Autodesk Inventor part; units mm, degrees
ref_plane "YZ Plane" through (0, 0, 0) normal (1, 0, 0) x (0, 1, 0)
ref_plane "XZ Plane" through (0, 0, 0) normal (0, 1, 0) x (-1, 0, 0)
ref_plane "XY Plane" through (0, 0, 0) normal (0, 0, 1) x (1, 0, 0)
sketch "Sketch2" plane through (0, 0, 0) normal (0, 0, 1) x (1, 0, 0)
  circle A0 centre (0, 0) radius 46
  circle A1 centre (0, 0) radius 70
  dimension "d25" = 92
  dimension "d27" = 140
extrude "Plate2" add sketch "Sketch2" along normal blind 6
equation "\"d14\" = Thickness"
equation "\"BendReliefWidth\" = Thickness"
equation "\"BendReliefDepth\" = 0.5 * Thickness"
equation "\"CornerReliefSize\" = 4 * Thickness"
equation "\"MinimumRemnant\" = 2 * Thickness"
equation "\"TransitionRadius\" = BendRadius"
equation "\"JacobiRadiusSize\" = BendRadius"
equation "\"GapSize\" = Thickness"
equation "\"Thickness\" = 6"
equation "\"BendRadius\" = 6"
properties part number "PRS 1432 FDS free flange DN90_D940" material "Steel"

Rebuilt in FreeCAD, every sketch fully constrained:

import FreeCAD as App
import Part
import Sketcher

doc = App.newDocument("Part")
body = doc.addObject("PartDesign::Body", "Body")

# Sketch on XY plane
sketch1 = body.newObject("Sketcher::SketchObject", "Sketch")
sketch1.AttachmentSupport = (doc.getObject("XY_Plane"), [""])
sketch1.MapMode = "FlatFace"
sketch1.addGeometry([
    Part.Circle(App.Vector(0, 0, 0), App.Vector(0, 0, 1), 70),
    Part.Circle(App.Vector(0, 0, 0), App.Vector(0, 0, 1), 46),
], False)
sketch1.addConstraint([
    Sketcher.Constraint("Coincident", 0, 3, -1, 1),
    Sketcher.Constraint("Coincident", 1, 3, -1, 1),
    Sketcher.Constraint("Diameter", 0, 140.0),
    Sketcher.Constraint("Diameter", 1, 92.0),
])
pad1 = body.newObject("PartDesign::Pad", "Pad")
pad1.Profile = sketch1
pad1.Length = 6

doc.recompute()
